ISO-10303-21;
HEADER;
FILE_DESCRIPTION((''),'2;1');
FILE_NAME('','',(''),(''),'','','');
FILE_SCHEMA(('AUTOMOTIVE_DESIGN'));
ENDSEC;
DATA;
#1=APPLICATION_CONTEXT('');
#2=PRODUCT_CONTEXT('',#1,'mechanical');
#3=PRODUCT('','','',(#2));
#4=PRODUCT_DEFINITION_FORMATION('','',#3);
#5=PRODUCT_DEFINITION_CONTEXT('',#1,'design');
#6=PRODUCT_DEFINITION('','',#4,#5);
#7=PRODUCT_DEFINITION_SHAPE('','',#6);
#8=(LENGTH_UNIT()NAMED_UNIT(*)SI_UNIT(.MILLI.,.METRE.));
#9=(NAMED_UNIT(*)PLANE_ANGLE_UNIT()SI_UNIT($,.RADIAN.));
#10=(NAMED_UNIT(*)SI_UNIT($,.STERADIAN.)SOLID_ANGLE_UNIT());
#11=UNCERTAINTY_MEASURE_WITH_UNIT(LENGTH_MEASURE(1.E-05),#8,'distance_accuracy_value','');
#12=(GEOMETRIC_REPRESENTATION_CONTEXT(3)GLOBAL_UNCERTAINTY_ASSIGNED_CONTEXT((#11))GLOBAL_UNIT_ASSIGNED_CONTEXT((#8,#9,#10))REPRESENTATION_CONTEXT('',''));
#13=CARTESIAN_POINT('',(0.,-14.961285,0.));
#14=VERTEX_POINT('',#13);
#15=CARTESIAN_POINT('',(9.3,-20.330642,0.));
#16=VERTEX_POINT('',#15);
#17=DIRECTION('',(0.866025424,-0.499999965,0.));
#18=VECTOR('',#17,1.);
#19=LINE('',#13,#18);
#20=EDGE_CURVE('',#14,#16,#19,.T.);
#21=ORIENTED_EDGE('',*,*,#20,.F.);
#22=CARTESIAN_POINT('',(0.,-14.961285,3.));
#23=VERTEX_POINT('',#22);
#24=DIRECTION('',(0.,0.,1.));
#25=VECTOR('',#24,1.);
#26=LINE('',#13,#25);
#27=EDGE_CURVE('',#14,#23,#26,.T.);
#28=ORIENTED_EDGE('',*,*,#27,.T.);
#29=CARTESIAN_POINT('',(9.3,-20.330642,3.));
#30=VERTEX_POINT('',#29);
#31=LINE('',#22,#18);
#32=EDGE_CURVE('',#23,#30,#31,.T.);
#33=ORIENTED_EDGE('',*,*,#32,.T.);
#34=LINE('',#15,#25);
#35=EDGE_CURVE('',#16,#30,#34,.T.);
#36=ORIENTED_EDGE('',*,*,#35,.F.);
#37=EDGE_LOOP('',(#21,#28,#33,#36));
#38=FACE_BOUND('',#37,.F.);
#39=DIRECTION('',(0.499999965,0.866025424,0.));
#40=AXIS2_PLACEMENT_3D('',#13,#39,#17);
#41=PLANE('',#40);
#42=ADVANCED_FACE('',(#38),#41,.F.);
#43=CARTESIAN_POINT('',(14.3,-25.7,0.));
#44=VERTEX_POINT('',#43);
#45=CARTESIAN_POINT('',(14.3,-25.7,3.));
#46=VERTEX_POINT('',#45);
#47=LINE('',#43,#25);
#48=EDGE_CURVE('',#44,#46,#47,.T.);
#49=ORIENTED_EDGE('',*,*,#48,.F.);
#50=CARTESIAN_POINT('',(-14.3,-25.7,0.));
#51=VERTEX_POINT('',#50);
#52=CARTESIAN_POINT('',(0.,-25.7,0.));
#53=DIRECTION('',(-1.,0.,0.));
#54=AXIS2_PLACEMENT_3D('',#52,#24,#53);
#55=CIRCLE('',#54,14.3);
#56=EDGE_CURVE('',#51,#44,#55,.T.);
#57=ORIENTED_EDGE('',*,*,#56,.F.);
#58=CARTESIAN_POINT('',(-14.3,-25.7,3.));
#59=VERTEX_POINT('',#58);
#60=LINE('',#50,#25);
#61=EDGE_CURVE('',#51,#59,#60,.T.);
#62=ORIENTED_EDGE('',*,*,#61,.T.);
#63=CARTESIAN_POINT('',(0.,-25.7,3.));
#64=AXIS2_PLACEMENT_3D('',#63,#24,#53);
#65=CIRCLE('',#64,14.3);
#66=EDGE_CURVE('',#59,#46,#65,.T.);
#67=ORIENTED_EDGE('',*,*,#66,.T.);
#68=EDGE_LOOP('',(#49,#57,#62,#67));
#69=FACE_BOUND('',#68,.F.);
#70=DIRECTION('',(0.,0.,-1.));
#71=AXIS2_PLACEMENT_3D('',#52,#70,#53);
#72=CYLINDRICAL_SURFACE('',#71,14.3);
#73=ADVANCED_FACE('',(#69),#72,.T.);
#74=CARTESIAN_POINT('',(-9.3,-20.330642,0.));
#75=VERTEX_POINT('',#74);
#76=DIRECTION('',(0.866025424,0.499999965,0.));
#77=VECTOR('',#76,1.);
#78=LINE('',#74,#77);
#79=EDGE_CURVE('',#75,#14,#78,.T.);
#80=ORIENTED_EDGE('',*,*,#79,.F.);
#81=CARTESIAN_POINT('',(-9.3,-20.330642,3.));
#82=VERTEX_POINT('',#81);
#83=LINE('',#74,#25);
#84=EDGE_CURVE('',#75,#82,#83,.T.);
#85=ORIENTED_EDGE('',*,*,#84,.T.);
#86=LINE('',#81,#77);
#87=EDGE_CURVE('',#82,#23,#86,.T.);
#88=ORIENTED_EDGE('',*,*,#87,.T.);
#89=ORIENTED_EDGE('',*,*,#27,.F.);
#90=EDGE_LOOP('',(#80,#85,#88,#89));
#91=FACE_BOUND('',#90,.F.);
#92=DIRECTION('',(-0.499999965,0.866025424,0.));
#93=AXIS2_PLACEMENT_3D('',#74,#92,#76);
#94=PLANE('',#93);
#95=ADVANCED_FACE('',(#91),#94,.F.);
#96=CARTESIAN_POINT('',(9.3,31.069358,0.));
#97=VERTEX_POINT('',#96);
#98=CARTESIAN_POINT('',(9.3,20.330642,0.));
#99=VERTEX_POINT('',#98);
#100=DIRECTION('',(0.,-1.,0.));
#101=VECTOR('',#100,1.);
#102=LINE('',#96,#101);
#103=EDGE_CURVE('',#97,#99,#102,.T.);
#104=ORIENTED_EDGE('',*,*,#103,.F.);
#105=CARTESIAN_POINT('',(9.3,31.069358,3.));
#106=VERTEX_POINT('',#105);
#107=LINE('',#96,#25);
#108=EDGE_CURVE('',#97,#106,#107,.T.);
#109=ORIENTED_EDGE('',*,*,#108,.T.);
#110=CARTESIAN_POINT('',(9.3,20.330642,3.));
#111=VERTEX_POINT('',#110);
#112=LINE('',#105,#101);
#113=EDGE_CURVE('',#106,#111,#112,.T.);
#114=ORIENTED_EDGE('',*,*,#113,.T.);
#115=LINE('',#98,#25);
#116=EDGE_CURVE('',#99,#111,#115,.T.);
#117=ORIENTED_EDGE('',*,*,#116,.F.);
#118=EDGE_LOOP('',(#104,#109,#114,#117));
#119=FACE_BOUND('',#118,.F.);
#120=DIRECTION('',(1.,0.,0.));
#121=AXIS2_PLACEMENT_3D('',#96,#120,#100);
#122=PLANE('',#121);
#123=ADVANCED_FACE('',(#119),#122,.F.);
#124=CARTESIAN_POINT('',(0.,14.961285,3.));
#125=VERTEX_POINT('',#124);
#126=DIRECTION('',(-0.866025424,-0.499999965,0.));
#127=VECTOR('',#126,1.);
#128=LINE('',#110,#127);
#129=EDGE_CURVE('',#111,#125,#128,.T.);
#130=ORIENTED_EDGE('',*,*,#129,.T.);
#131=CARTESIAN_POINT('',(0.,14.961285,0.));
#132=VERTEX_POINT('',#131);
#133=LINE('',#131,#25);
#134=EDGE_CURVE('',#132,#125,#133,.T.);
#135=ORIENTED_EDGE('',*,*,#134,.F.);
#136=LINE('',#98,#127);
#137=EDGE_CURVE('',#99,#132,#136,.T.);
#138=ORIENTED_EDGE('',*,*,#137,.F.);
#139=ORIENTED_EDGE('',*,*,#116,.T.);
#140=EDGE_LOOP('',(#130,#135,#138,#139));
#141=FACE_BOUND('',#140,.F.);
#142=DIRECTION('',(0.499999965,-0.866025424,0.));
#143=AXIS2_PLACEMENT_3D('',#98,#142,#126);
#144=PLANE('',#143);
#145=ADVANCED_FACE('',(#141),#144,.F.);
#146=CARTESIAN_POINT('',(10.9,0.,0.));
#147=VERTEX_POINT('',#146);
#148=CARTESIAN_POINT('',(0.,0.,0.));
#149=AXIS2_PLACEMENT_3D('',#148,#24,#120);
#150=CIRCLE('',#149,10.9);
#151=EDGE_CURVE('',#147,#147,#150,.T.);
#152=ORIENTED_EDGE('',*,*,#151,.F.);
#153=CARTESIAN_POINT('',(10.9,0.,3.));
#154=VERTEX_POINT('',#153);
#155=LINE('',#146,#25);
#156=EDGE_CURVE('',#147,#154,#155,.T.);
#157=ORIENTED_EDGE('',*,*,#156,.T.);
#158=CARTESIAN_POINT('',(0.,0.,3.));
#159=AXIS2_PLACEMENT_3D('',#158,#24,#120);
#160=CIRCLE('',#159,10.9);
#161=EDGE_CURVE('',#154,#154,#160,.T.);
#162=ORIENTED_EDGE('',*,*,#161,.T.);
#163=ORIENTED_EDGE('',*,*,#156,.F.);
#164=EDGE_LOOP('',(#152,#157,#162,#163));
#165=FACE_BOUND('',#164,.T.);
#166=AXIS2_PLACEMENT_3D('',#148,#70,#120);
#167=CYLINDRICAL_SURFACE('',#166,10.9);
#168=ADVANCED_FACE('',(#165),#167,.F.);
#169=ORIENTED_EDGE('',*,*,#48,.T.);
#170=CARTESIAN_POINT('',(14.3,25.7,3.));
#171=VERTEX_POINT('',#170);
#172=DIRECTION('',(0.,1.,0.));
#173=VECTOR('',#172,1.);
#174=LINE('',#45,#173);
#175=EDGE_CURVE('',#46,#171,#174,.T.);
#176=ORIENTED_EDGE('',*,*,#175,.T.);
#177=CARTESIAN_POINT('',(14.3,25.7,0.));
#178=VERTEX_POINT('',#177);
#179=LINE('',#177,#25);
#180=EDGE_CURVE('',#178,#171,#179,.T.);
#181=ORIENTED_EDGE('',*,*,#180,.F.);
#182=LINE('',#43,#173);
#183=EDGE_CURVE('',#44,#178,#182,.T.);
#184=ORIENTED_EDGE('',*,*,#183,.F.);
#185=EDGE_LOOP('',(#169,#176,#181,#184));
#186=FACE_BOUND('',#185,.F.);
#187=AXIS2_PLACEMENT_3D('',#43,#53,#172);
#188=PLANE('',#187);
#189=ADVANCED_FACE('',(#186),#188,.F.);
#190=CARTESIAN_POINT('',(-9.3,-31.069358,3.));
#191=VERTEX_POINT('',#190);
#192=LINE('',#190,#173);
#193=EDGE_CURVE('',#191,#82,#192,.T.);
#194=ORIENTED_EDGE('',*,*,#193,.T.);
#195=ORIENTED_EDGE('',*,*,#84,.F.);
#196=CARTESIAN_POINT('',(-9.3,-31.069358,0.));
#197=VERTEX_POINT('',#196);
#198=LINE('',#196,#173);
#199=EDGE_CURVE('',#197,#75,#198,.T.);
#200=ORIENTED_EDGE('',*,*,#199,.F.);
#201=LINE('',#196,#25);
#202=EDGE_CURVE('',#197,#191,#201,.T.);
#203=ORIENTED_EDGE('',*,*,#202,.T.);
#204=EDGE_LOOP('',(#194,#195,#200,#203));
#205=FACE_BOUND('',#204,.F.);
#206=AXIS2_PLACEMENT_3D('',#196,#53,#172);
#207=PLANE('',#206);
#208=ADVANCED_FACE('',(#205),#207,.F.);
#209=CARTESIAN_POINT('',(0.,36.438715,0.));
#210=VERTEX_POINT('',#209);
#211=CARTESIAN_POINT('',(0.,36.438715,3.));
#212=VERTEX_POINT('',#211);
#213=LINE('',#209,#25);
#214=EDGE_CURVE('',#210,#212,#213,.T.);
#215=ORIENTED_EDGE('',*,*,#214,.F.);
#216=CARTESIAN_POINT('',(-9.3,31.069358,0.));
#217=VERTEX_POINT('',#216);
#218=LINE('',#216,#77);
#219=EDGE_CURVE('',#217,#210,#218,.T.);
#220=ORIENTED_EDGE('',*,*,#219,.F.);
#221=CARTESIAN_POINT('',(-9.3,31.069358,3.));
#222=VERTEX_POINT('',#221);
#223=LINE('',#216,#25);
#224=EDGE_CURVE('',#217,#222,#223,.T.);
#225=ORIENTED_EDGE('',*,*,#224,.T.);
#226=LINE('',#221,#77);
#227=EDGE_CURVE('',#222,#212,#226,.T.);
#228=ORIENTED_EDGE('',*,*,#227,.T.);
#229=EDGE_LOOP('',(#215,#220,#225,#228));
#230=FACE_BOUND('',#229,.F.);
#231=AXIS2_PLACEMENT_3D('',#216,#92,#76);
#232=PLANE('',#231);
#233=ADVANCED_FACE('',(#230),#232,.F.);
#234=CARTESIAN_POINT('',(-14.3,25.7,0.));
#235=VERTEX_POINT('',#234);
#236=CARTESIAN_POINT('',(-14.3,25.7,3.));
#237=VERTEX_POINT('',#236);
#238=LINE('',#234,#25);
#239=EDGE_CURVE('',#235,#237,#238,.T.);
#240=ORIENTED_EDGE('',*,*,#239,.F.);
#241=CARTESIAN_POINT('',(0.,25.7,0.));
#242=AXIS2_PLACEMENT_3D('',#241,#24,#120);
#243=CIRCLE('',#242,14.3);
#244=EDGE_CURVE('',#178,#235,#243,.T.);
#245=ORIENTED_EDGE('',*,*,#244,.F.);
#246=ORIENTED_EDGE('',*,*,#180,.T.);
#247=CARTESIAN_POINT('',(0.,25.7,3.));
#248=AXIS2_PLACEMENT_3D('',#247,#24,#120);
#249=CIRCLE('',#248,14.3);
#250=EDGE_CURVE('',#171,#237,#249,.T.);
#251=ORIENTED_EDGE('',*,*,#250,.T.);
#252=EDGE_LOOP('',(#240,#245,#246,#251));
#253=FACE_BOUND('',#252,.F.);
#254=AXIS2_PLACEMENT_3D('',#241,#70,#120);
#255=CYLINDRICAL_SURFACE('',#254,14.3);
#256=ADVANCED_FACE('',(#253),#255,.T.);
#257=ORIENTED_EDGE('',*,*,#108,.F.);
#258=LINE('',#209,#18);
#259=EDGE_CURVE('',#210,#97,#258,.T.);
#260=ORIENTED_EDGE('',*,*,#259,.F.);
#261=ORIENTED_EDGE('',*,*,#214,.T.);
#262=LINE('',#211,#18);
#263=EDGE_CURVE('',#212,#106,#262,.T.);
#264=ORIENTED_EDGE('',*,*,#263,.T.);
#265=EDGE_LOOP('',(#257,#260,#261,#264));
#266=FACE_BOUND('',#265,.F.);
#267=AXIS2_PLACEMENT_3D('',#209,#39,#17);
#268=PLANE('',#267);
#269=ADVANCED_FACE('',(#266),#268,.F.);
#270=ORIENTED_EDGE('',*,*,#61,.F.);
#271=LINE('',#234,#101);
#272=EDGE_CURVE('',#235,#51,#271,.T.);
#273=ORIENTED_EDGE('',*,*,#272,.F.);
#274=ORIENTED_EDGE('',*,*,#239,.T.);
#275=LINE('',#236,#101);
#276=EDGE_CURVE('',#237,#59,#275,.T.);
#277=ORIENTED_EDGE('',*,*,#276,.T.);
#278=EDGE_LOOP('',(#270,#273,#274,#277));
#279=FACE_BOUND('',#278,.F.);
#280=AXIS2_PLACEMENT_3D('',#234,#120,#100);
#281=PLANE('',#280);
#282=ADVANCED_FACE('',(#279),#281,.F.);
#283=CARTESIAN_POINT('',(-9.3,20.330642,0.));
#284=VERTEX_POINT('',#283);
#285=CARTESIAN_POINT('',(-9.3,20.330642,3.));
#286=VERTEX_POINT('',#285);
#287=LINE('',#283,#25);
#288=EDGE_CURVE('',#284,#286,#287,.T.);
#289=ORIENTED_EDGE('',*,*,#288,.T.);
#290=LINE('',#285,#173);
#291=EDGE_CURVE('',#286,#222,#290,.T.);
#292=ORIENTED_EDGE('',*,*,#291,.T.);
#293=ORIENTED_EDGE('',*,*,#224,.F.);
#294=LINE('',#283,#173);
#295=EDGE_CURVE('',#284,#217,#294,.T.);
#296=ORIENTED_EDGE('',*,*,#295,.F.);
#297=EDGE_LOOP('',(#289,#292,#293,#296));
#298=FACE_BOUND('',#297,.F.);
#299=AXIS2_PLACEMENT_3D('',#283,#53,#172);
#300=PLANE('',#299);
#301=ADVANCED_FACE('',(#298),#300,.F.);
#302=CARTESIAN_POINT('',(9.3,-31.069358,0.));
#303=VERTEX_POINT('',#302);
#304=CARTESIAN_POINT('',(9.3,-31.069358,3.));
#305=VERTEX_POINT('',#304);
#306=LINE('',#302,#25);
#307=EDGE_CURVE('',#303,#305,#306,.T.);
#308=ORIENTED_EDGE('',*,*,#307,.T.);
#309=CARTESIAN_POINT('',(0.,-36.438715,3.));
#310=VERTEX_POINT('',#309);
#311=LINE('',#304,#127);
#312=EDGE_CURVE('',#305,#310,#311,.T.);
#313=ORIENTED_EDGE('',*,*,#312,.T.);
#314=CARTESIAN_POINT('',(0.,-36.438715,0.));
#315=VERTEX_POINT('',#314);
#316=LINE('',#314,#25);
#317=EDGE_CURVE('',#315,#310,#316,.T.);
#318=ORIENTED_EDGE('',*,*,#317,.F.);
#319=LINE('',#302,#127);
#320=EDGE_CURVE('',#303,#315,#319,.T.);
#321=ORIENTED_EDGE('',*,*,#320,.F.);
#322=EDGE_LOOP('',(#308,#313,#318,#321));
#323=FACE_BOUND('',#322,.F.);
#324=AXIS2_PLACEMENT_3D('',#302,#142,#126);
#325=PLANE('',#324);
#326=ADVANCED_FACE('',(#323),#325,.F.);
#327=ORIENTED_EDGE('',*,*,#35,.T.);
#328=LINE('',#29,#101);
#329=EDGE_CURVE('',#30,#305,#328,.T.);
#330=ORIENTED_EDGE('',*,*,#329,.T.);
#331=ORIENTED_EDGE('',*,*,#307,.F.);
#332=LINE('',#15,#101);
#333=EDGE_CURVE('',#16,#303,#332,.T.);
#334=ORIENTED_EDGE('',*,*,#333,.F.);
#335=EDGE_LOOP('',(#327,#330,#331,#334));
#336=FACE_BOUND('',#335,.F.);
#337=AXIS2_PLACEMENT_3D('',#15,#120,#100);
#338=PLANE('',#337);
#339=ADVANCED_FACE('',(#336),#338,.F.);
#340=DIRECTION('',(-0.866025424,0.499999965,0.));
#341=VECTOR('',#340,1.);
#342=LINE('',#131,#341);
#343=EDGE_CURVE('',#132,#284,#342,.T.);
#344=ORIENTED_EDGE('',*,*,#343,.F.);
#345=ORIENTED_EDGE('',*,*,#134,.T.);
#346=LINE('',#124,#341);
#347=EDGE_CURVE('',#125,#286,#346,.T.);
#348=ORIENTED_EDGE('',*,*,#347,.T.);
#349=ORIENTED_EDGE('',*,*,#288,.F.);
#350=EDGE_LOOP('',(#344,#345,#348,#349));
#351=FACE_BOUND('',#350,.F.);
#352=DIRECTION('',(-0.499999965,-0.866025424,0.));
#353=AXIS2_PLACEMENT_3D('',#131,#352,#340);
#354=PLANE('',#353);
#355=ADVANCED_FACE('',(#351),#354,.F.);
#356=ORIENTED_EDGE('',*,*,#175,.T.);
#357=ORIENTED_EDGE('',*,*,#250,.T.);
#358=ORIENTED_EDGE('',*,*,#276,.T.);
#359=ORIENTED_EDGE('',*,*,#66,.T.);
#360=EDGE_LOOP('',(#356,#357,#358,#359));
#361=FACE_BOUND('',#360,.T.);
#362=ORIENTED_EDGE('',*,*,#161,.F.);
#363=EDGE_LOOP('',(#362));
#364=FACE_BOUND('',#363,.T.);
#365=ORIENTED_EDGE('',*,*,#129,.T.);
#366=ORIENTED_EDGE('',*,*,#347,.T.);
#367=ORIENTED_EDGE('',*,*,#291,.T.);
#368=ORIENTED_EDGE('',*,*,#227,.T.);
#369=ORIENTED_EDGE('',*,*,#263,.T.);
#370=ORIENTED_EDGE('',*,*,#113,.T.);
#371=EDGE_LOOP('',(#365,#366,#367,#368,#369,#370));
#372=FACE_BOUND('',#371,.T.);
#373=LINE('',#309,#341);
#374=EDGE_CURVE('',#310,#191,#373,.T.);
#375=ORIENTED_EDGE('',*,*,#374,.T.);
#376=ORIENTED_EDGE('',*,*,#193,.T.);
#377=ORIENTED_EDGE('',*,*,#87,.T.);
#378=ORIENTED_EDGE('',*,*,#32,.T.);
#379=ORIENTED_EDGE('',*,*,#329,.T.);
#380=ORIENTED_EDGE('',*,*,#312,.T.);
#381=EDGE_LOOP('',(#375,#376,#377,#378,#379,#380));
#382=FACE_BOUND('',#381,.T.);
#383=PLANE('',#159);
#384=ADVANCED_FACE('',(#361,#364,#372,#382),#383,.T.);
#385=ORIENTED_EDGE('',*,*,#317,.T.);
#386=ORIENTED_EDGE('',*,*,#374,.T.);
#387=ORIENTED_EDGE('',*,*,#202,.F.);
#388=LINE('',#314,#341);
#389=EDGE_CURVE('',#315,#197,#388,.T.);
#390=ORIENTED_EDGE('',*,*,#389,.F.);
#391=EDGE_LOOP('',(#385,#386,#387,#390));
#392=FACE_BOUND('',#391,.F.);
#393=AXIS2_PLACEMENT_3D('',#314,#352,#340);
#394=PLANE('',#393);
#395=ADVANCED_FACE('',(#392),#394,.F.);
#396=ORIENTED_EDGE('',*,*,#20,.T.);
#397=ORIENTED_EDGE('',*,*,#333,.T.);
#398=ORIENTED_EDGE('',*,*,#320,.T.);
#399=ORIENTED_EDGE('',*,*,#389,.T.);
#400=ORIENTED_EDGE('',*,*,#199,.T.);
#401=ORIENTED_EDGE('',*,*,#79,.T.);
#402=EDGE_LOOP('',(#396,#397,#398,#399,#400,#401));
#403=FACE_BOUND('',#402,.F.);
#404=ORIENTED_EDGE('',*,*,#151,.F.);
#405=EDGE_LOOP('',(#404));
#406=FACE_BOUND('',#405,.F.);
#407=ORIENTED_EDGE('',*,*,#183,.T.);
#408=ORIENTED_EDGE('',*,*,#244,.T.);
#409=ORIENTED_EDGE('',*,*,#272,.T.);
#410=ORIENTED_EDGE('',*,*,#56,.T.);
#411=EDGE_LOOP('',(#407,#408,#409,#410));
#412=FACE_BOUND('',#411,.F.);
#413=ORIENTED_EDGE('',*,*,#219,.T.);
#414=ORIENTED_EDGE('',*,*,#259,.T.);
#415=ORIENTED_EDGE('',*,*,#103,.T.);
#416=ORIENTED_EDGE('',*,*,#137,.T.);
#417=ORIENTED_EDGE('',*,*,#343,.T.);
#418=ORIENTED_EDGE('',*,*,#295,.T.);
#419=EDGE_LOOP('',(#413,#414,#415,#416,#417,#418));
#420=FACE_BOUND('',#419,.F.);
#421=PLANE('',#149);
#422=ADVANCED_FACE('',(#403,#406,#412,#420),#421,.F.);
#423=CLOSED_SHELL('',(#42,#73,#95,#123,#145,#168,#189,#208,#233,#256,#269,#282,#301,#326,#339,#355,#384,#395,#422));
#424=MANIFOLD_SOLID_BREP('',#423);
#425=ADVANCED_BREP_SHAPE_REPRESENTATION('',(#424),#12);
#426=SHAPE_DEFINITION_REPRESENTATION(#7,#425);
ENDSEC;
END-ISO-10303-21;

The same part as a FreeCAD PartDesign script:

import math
import FreeCAD as App
import Part
import Sketcher
from FreeCAD import Vector
Q = App.Units.Quantity

doc = App.newDocument("Part")
body = doc.addObject("PartDesign::Body", "Body")

# Sketch on XY plane
sketch1 = body.newObject("Sketcher::SketchObject", "Sketch")
sketch1.AttachmentSupport = (doc.getObject("XY_Plane"), [""])
sketch1.MapMode = "FlatFace"
sketch1.addGeometry([
    Part.ArcOfCircle(Part.Circle(Vector(0, 26, 0), Vector(0, 0, 1), 14), math.radians(0), math.radians(180)),  # 0
    Part.LineSegment(Vector(-14, 26, 0), Vector(-14, -26, 0)),  # 1
    Part.ArcOfCircle(Part.Circle(Vector(0, -26, 0), Vector(0, 0, 1), 14), math.radians(180), math.radians(360)),  # 2
    Part.LineSegment(Vector(14, -26, 0), Vector(14, 26, 0)),  # 3
    Part.LineSegment(Vector(-9, -20, 0), Vector(0, -15, 0)),  # 4
    Part.LineSegment(Vector(0, -15, 0), Vector(9, -20, 0)),  # 5
    Part.LineSegment(Vector(9, -20, 0), Vector(9, -31, 0)),  # 6
    Part.LineSegment(Vector(9, -31, 0), Vector(0, -36, 0)),  # 7
    Part.LineSegment(Vector(0, -36, 0), Vector(-9, -31, 0)),  # 8
    Part.LineSegment(Vector(-9, -31, 0), Vector(-9, -20, 0)),  # 9
    Part.Circle(Vector(0, 0, 0), Vector(0, 0, 1), 11),  # 10
    Part.LineSegment(Vector(9, 20, 0), Vector(0, 15, 0)),  # 11
    Part.LineSegment(Vector(0, 15, 0), Vector(-9, 20, 0)),  # 12
    Part.LineSegment(Vector(-9, 20, 0), Vector(-9, 31, 0)),  # 13
    Part.LineSegment(Vector(-9, 31, 0), Vector(0, 36, 0)),  # 14
    Part.LineSegment(Vector(0, 36, 0), Vector(9, 31, 0)),  # 15
    Part.LineSegment(Vector(9, 31, 0), Vector(9, 20, 0)),  # 16
], False)
sketch1.addConstraint([
    Sketcher.Constraint("Tangent", 0, 2, 1, 1),
    Sketcher.Constraint("Tangent", 1, 2, 2, 1),
    Sketcher.Constraint("Tangent", 2, 2, 3, 1),
    Sketcher.Constraint("Tangent", 3, 2, 0, 1),
    Sketcher.Constraint("Coincident", 4, 2, 5, 1),
    Sketcher.Constraint("Coincident", 5, 2, 6, 1),
    Sketcher.Constraint("Coincident", 6, 2, 7, 1),
    Sketcher.Constraint("Coincident", 7, 2, 8, 1),
    Sketcher.Constraint("Coincident", 8, 2, 9, 1),
    Sketcher.Constraint("Coincident", 9, 2, 4, 1),
    Sketcher.Constraint("Coincident", 11, 2, 12, 1),
    Sketcher.Constraint("Coincident", 12, 2, 13, 1),
    Sketcher.Constraint("Coincident", 13, 2, 14, 1),
    Sketcher.Constraint("Coincident", 14, 2, 15, 1),
    Sketcher.Constraint("Coincident", 15, 2, 16, 1),
    Sketcher.Constraint("Coincident", 16, 2, 11, 1),
    Sketcher.Constraint("Vertical", 1),
    Sketcher.Constraint("Vertical", 3),
    Sketcher.Constraint("Vertical", 6),
    Sketcher.Constraint("Vertical", 9),
    Sketcher.Constraint("Vertical", 13),
    Sketcher.Constraint("Vertical", 16),
    Sketcher.Constraint("Coincident", 10, 3, -1, 1),
    Sketcher.Constraint("Symmetric", 0, 3, 2, 3, -1, 1),
    Sketcher.Constraint("Symmetric", 4, 2, 11, 2, -1, 1),
    Sketcher.Constraint("Symmetric", 5, 2, 12, 2, -1, 1),
    Sketcher.Constraint("Symmetric", 7, 2, 14, 2, -1, 1),
    Sketcher.Constraint("Symmetric", 8, 2, 15, 2, -1, 1),
    Sketcher.Constraint("Symmetric", 6, 2, 8, 2, -2),
    Sketcher.Constraint("PointOnObject", 4, 2, -2),
    Sketcher.Constraint("PointOnObject", 7, 2, -2),
    Sketcher.Constraint("Parallel", 4, 7),
    Sketcher.Constraint("Parallel", 5, 8),
    Sketcher.Constraint("Parallel", 7, 11),
    Sketcher.Constraint("Parallel", 11, 14),
    Sketcher.Constraint("Diameter", 10, 21.8),
    Sketcher.Constraint("Radius", 0, 14.3),
    Sketcher.Constraint("Angle", 4, Q("29.999998 deg")),
    Sketcher.Constraint("DistanceY", 1, 2, 1, 1, 51.4),
    Sketcher.Constraint("DistanceX", 5, 2, 2, 2, 5.0),
    Sketcher.Constraint("DistanceY", 6, 2, 6, 1, 10.738716),
    Sketcher.Constraint("DistanceY", 6, 2, -1, 1, 31.069358),
])
pad1 = body.newObject("PartDesign::Pad", "Pad")
pad1.Profile = sketch1
pad1.Length = 3

doc.recompute()
